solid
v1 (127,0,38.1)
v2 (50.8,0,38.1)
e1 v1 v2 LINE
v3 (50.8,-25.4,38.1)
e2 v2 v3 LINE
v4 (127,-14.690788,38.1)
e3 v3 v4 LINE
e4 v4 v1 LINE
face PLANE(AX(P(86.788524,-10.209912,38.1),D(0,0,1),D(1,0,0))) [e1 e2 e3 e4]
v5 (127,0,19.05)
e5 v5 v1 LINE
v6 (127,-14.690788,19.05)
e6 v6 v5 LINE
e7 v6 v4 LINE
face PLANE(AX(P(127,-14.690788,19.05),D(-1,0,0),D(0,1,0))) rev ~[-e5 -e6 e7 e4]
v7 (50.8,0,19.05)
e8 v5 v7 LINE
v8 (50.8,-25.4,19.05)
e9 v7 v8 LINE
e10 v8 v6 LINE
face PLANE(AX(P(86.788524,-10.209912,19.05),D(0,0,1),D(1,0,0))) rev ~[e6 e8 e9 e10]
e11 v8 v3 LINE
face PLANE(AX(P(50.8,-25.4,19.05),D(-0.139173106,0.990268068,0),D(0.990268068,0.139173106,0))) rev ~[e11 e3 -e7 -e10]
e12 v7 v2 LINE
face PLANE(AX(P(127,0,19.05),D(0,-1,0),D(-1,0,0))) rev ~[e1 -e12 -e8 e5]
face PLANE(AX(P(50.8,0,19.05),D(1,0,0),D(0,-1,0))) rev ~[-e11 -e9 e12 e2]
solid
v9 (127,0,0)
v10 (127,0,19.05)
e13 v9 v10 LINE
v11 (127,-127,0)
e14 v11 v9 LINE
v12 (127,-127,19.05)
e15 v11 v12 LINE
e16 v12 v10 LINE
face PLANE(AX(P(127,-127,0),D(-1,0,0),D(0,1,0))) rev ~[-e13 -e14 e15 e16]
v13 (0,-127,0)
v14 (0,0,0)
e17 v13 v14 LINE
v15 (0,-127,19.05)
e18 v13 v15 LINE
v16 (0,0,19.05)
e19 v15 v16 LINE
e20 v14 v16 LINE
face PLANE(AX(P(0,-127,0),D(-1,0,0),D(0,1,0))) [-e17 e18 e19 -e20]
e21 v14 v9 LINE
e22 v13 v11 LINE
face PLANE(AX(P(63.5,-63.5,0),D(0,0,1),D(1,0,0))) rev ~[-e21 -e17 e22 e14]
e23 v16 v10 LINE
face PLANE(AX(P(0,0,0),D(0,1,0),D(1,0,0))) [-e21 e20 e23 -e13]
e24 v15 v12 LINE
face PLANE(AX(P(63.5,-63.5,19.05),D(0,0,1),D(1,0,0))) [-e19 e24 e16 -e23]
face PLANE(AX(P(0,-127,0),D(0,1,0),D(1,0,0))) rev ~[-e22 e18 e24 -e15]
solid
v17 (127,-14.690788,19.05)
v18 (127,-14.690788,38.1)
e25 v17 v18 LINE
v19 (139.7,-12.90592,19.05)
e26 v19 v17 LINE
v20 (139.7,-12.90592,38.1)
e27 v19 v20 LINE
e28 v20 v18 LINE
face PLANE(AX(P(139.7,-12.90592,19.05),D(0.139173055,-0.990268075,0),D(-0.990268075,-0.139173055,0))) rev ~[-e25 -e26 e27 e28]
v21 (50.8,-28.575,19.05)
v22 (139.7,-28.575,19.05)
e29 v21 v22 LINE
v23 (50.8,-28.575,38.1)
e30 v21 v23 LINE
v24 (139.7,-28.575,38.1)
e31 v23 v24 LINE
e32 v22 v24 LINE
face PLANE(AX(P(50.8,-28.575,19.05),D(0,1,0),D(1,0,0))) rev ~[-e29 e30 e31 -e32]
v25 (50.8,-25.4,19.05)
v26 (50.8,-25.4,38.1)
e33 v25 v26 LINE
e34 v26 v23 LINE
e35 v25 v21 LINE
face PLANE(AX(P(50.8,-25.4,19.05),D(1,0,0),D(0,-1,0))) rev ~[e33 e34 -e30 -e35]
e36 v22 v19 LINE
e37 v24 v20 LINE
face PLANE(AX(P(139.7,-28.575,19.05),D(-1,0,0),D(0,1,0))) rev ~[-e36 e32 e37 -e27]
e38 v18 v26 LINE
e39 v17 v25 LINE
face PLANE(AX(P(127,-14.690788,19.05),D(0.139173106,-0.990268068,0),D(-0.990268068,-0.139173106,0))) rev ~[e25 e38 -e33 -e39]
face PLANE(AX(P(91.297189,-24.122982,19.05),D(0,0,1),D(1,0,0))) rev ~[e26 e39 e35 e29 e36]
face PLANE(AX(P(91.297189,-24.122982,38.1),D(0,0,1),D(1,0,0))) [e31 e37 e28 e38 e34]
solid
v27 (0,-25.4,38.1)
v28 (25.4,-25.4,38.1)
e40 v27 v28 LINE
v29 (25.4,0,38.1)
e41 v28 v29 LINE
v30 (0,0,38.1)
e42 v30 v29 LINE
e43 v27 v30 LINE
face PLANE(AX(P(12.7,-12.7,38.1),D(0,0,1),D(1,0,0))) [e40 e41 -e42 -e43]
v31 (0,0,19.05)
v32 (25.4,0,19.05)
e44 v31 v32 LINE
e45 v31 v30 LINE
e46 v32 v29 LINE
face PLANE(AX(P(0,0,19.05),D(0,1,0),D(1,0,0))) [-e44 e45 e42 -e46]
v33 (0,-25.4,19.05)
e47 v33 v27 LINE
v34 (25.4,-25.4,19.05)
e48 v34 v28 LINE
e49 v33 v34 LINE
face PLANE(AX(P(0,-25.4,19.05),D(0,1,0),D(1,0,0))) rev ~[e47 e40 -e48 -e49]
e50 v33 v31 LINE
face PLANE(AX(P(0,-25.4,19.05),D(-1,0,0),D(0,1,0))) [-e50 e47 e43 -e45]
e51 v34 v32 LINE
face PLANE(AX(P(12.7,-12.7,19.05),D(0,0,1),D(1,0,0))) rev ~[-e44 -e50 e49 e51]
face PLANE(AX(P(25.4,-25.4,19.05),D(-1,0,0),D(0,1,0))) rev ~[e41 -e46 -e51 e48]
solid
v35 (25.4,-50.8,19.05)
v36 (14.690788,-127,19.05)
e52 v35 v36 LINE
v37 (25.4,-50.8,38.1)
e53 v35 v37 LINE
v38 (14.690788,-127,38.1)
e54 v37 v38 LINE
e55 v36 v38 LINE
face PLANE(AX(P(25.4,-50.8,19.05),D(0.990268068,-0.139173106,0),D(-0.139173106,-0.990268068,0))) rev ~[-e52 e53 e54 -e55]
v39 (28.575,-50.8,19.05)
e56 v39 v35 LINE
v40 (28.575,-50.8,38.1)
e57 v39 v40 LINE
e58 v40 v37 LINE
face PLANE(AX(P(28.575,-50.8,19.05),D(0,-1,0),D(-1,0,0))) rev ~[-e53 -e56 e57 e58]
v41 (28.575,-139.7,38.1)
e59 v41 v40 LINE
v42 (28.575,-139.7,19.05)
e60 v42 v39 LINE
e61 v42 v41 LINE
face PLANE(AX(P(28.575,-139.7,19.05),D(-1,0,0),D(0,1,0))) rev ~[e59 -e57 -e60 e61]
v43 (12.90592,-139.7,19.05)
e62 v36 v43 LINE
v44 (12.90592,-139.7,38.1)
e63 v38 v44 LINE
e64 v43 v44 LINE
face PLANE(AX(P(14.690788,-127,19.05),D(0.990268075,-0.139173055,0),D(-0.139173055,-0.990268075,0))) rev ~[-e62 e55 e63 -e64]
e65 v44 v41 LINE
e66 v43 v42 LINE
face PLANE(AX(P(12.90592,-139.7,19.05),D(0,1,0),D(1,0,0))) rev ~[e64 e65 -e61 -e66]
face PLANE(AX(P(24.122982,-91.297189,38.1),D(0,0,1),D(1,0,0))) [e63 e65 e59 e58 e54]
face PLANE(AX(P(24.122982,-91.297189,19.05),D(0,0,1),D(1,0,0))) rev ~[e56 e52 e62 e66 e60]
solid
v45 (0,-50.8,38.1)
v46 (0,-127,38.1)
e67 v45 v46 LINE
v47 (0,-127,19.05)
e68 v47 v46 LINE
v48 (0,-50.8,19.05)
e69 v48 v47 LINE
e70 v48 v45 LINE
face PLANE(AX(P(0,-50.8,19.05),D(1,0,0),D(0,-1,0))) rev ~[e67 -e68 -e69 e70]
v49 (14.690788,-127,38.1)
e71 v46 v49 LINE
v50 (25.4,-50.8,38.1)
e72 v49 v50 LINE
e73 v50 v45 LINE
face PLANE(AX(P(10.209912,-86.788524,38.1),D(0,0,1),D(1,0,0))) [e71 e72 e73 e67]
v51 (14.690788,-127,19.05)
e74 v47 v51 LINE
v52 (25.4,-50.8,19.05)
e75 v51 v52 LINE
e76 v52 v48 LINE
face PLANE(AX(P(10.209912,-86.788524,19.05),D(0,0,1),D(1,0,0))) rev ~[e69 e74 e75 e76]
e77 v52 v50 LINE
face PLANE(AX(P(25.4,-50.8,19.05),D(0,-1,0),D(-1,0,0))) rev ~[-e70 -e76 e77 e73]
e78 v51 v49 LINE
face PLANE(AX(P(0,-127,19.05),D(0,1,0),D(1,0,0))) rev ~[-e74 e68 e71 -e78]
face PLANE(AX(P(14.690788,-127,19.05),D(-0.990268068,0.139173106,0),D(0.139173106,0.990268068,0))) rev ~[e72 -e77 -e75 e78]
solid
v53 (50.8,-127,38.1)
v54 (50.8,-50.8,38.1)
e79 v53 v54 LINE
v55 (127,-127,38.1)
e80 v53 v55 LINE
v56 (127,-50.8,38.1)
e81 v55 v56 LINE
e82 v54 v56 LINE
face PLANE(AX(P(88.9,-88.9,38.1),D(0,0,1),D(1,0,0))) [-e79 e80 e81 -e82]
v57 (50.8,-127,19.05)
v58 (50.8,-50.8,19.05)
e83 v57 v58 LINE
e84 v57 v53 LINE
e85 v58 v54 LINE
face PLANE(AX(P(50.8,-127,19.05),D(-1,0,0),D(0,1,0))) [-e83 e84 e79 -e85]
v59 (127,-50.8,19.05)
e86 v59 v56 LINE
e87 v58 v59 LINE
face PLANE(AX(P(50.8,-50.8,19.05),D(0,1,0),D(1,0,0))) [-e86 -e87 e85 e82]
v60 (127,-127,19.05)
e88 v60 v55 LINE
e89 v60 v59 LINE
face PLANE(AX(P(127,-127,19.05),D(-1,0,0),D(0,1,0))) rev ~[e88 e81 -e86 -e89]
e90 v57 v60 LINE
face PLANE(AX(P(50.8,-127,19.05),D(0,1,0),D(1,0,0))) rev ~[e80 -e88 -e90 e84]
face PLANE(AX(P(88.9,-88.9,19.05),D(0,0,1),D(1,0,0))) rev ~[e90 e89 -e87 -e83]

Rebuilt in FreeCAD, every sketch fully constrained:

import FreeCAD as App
import Part
import Sketcher
Q = App.Units.Quantity

doc = App.newDocument("Part")
body = doc.addObject("PartDesign::Body", "Body")

sketch1 = body.newObject("Sketcher::SketchObject", "Sketch")
sketch1.AttachmentSupport = (doc.getObject("XY_Plane"), [""])
sketch1.MapMode = "FlatFace"
sketch1.addGeometry([
    Part.LineSegment(App.Vector(0, 0, 0), App.Vector(0, -127, 0)),
    Part.LineSegment(App.Vector(0, -127, 0), App.Vector(127, -127, 0)),
    Part.LineSegment(App.Vector(127, -127, 0), App.Vector(127, 0, 0)),
    Part.LineSegment(App.Vector(127, 0, 0), App.Vector(0, 0, 0)),
], False)
sketch1.addConstraint([
    Sketcher.Constraint("Coincident", 0, 2, 1, 1),
    Sketcher.Constraint("Coincident", 1, 2, 2, 1),
    Sketcher.Constraint("Coincident", 2, 2, 3, 1),
    Sketcher.Constraint("Coincident", 3, 2, 0, 1),
    Sketcher.Constraint("Vertical", 0),
    Sketcher.Constraint("Horizontal", 1),
    Sketcher.Constraint("Vertical", 2),
    Sketcher.Constraint("Horizontal", 3),
    Sketcher.Constraint("Coincident", 3, 2, -1, 1),
    Sketcher.Constraint("Equal", 3, 0),
    Sketcher.Constraint("DistanceX", 1, 1, 1, 2, Q("5 in")),
])
pad1 = body.newObject("PartDesign::Pad", "Pad")
pad1.Profile = sketch1
pad1.Length = Q("0.75 in")
body2 = doc.addObject("PartDesign::Body", "Body001")
body2.AllowCompound = True

sketch2 = body2.newObject("Sketcher::SketchObject", "Sketch001")
sketch2.AttachmentSupport = (doc.getObject("XY_Plane001"), [""])
sketch2.MapMode = "FlatFace"
sketch2.AttachmentOffset = App.Placement(App.Vector(0, 0, 0.75 * 25.4), App.Rotation())
sketch2.addGeometry([
    Part.LineSegment(App.Vector(127, 0, 0), App.Vector(51, 0, 0)),
    Part.LineSegment(App.Vector(51, 0, 0), App.Vector(51, -25, 0)),
    Part.LineSegment(App.Vector(51, -25, 0), App.Vector(127, -15, 0)),
    Part.LineSegment(App.Vector(127, -15, 0), App.Vector(127, 0, 0)),
    Part.LineSegment(App.Vector(25, -51, 0), App.Vector(0, -51, 0)),
    Part.LineSegment(App.Vector(0, -51, 0), App.Vector(0, -127, 0)),
    Part.LineSegment(App.Vector(0, -127, 0), App.Vector(15, -127, 0)),
    Part.LineSegment(App.Vector(15, -127, 0), App.Vector(25, -51, 0)),
    Part.LineSegment(App.Vector(0, 0, 0), App.Vector(0, -25, 0)),
    Part.LineSegment(App.Vector(0, -25, 0), App.Vector(25, -25, 0)),
    Part.LineSegment(App.Vector(25, -25, 0), App.Vector(25, 0, 0)),
    Part.LineSegment(App.Vector(25, 0, 0), App.Vector(0, 0, 0)),
    Part.LineSegment(App.Vector(51, -51, 0), App.Vector(51, -127, 0)),
    Part.LineSegment(App.Vector(51, -127, 0), App.Vector(127, -127, 0)),
    Part.LineSegment(App.Vector(127, -127, 0), App.Vector(127, -51, 0)),
    Part.LineSegment(App.Vector(127, -51, 0), App.Vector(51, -51, 0)),
], False)
sketch2.addConstraint([
    Sketcher.Constraint("Coincident", 0, 2, 1, 1),
    Sketcher.Constraint("Coincident", 1, 2, 2, 1),
    Sketcher.Constraint("Coincident", 2, 2, 3, 1),
    Sketcher.Constraint("Coincident", 3, 2, 0, 1),
    Sketcher.Constraint("Coincident", 4, 2, 5, 1),
    Sketcher.Constraint("Coincident", 5, 2, 6, 1),
    Sketcher.Constraint("Coincident", 6, 2, 7, 1),
    Sketcher.Constraint("Coincident", 7, 2, 4, 1),
    Sketcher.Constraint("Coincident", 8, 2, 9, 1),
    Sketcher.Constraint("Coincident", 9, 2, 10, 1),
    Sketcher.Constraint("Coincident", 10, 2, 11, 1),
    Sketcher.Constraint("Coincident", 11, 2, 8, 1),
    Sketcher.Constraint("Coincident", 12, 2, 13, 1),
    Sketcher.Constraint("Coincident", 13, 2, 14, 1),
    Sketcher.Constraint("Coincident", 14, 2, 15, 1),
    Sketcher.Constraint("Coincident", 15, 2, 12, 1),
    Sketcher.Constraint("Horizontal", 0),
    Sketcher.Constraint("Vertical", 1),
    Sketcher.Constraint("Vertical", 3),
    Sketcher.Constraint("Horizontal", 4),
    Sketcher.Constraint("Vertical", 5),
    Sketcher.Constraint("Horizontal", 6),
    Sketcher.Constraint("Vertical", 8),
    Sketcher.Constraint("Horizontal", 9),
    Sketcher.Constraint("Vertical", 10),
    Sketcher.Constraint("Horizontal", 11),
    Sketcher.Constraint("Vertical", 12),
    Sketcher.Constraint("Horizontal", 13),
    Sketcher.Constraint("Vertical", 14),
    Sketcher.Constraint("Horizontal", 15),
    Sketcher.Constraint("Coincident", 11, 2, -1, 1),
    Sketcher.Constraint("PointOnObject", 0, 2, -1),
    Sketcher.Constraint("PointOnObject", 4, 2, -2),
    Sketcher.Constraint("Horizontal", 1, 2, 8, 2),
    Sketcher.Constraint("Horizontal", 6, 2, 12, 2),
    Sketcher.Constraint("Horizontal", 7, 2, 14, 2),
    Sketcher.Constraint("Vertical", 7, 2, 9, 2),
    Sketcher.Constraint("Vertical", 1, 2, 12, 2),
    Sketcher.Constraint("Vertical", 3, 2, 13, 2),
    Sketcher.Constraint("Equal", 11, 1),
    Sketcher.Constraint("Equal", 6, 3),
    Sketcher.Constraint("Equal", 15, 5),
    Sketcher.Constraint("DistanceX", 0, 2, 0, 1, Q("3 in")),
    Sketcher.Constraint("DistanceX", 4, 2, 4, 1, Q("1 in")),
    Sketcher.Constraint("DistanceX", -1, 1, 0, 2, Q("2 in")),
    Sketcher.Constraint("DistanceY", 4, 2, -1, 1, Q("2 in")),
    Sketcher.Constraint("Angle", 2, Q("8 deg")),
])
pad2 = body2.newObject("PartDesign::Pad", "Pad001")
pad2.Profile = sketch2
pad2.Length = Q("0.75 in")
body3 = doc.addObject("PartDesign::Body", "Body002")
body3.AllowCompound = True

sketch3 = body3.newObject("Sketcher::SketchObject", "Sketch002")
sketch3.AttachmentSupport = (doc.getObject("XY_Plane002"), [""])
sketch3.MapMode = "FlatFace"
sketch3.AttachmentOffset = App.Placement(App.Vector(0, 0, 0.75 * 25.4), App.Rotation())
sketch3.addGeometry([
    Part.LineSegment(App.Vector(127, -14.7, 0), App.Vector(50.8, -25.4, 0)),
    Part.LineSegment(App.Vector(50.8, -25.4, 0), App.Vector(50.8, -28.6, 0)),
    Part.LineSegment(App.Vector(50.8, -28.6, 0), App.Vector(139.7, -28.6, 0)),
    Part.LineSegment(App.Vector(139.7, -28.6, 0), App.Vector(139.7, -12.9, 0)),
    Part.LineSegment(App.Vector(139.7, -12.9, 0), App.Vector(127, -14.7, 0)),
    Part.LineSegment(App.Vector(28.6, -50.8, 0), App.Vector(25.4, -50.8, 0)),
    Part.LineSegment(App.Vector(25.4, -50.8, 0), App.Vector(14.7, -127, 0)),
    Part.LineSegment(App.Vector(14.7, -127, 0), App.Vector(12.9, -139.7, 0)),
    Part.LineSegment(App.Vector(12.9, -139.7, 0), App.Vector(28.6, -139.7, 0)),
    Part.LineSegment(App.Vector(28.6, -139.7, 0), App.Vector(28.6, -50.8, 0)),
], False)
sketch3.addConstraint([
    Sketcher.Constraint("Coincident", 0, 2, 1, 1),
    Sketcher.Constraint("Coincident", 1, 2, 2, 1),
    Sketcher.Constraint("Coincident", 2, 2, 3, 1),
    Sketcher.Constraint("Coincident", 3, 2, 4, 1),
    Sketcher.Constraint("Coincident", 4, 2, 0, 1),
    Sketcher.Constraint("Coincident", 5, 2, 6, 1),
    Sketcher.Constraint("Coincident", 6, 2, 7, 1),
    Sketcher.Constraint("Coincident", 7, 2, 8, 1),
    Sketcher.Constraint("Coincident", 8, 2, 9, 1),
    Sketcher.Constraint("Coincident", 9, 2, 5, 1),
    Sketcher.Constraint("Vertical", 1),
    Sketcher.Constraint("Horizontal", 2),
    Sketcher.Constraint("Vertical", 3),
    Sketcher.Constraint("Horizontal", 5),
    Sketcher.Constraint("Horizontal", 8),
    Sketcher.Constraint("Vertical", 9),
    Sketcher.Constraint("Parallel", 0, 4),
    Sketcher.Constraint("Parallel", 6, 7),
    Sketcher.Constraint("Equal", 5, 1),
    Sketcher.Constraint("Equal", 8, 3),
    Sketcher.Constraint("Equal", 2, 9),
    Sketcher.Constraint("Equal", 0, 6),
    Sketcher.Constraint("DistanceX", 2, 1, 2, 2, Q("3.5 in")),
    Sketcher.Constraint("DistanceX", -1, 1, 0, 2, Q("2 in")),
    Sketcher.Constraint("DistanceY", 0, 2, -1, 1, Q("1 in")),
    Sketcher.Constraint("DistanceX", -1, 1, 4, 2, Q("5 in")),
    Sketcher.Constraint("DistanceX", -1, 1, 5, 2, Q("1 in")),
    Sketcher.Constraint("DistanceY", 5, 2, -1, 1, Q("2 in")),
    Sketcher.Constraint("Angle", 0, Q("-172 deg")),
    Sketcher.Constraint("DistanceX", 5, 2, 5, 1, Q("0.125 in")),
])
pad3 = body3.newObject("PartDesign::Pad", "Pad002")
pad3.Profile = sketch3
pad3.Length = Q("0.75 in")

doc.recompute()
